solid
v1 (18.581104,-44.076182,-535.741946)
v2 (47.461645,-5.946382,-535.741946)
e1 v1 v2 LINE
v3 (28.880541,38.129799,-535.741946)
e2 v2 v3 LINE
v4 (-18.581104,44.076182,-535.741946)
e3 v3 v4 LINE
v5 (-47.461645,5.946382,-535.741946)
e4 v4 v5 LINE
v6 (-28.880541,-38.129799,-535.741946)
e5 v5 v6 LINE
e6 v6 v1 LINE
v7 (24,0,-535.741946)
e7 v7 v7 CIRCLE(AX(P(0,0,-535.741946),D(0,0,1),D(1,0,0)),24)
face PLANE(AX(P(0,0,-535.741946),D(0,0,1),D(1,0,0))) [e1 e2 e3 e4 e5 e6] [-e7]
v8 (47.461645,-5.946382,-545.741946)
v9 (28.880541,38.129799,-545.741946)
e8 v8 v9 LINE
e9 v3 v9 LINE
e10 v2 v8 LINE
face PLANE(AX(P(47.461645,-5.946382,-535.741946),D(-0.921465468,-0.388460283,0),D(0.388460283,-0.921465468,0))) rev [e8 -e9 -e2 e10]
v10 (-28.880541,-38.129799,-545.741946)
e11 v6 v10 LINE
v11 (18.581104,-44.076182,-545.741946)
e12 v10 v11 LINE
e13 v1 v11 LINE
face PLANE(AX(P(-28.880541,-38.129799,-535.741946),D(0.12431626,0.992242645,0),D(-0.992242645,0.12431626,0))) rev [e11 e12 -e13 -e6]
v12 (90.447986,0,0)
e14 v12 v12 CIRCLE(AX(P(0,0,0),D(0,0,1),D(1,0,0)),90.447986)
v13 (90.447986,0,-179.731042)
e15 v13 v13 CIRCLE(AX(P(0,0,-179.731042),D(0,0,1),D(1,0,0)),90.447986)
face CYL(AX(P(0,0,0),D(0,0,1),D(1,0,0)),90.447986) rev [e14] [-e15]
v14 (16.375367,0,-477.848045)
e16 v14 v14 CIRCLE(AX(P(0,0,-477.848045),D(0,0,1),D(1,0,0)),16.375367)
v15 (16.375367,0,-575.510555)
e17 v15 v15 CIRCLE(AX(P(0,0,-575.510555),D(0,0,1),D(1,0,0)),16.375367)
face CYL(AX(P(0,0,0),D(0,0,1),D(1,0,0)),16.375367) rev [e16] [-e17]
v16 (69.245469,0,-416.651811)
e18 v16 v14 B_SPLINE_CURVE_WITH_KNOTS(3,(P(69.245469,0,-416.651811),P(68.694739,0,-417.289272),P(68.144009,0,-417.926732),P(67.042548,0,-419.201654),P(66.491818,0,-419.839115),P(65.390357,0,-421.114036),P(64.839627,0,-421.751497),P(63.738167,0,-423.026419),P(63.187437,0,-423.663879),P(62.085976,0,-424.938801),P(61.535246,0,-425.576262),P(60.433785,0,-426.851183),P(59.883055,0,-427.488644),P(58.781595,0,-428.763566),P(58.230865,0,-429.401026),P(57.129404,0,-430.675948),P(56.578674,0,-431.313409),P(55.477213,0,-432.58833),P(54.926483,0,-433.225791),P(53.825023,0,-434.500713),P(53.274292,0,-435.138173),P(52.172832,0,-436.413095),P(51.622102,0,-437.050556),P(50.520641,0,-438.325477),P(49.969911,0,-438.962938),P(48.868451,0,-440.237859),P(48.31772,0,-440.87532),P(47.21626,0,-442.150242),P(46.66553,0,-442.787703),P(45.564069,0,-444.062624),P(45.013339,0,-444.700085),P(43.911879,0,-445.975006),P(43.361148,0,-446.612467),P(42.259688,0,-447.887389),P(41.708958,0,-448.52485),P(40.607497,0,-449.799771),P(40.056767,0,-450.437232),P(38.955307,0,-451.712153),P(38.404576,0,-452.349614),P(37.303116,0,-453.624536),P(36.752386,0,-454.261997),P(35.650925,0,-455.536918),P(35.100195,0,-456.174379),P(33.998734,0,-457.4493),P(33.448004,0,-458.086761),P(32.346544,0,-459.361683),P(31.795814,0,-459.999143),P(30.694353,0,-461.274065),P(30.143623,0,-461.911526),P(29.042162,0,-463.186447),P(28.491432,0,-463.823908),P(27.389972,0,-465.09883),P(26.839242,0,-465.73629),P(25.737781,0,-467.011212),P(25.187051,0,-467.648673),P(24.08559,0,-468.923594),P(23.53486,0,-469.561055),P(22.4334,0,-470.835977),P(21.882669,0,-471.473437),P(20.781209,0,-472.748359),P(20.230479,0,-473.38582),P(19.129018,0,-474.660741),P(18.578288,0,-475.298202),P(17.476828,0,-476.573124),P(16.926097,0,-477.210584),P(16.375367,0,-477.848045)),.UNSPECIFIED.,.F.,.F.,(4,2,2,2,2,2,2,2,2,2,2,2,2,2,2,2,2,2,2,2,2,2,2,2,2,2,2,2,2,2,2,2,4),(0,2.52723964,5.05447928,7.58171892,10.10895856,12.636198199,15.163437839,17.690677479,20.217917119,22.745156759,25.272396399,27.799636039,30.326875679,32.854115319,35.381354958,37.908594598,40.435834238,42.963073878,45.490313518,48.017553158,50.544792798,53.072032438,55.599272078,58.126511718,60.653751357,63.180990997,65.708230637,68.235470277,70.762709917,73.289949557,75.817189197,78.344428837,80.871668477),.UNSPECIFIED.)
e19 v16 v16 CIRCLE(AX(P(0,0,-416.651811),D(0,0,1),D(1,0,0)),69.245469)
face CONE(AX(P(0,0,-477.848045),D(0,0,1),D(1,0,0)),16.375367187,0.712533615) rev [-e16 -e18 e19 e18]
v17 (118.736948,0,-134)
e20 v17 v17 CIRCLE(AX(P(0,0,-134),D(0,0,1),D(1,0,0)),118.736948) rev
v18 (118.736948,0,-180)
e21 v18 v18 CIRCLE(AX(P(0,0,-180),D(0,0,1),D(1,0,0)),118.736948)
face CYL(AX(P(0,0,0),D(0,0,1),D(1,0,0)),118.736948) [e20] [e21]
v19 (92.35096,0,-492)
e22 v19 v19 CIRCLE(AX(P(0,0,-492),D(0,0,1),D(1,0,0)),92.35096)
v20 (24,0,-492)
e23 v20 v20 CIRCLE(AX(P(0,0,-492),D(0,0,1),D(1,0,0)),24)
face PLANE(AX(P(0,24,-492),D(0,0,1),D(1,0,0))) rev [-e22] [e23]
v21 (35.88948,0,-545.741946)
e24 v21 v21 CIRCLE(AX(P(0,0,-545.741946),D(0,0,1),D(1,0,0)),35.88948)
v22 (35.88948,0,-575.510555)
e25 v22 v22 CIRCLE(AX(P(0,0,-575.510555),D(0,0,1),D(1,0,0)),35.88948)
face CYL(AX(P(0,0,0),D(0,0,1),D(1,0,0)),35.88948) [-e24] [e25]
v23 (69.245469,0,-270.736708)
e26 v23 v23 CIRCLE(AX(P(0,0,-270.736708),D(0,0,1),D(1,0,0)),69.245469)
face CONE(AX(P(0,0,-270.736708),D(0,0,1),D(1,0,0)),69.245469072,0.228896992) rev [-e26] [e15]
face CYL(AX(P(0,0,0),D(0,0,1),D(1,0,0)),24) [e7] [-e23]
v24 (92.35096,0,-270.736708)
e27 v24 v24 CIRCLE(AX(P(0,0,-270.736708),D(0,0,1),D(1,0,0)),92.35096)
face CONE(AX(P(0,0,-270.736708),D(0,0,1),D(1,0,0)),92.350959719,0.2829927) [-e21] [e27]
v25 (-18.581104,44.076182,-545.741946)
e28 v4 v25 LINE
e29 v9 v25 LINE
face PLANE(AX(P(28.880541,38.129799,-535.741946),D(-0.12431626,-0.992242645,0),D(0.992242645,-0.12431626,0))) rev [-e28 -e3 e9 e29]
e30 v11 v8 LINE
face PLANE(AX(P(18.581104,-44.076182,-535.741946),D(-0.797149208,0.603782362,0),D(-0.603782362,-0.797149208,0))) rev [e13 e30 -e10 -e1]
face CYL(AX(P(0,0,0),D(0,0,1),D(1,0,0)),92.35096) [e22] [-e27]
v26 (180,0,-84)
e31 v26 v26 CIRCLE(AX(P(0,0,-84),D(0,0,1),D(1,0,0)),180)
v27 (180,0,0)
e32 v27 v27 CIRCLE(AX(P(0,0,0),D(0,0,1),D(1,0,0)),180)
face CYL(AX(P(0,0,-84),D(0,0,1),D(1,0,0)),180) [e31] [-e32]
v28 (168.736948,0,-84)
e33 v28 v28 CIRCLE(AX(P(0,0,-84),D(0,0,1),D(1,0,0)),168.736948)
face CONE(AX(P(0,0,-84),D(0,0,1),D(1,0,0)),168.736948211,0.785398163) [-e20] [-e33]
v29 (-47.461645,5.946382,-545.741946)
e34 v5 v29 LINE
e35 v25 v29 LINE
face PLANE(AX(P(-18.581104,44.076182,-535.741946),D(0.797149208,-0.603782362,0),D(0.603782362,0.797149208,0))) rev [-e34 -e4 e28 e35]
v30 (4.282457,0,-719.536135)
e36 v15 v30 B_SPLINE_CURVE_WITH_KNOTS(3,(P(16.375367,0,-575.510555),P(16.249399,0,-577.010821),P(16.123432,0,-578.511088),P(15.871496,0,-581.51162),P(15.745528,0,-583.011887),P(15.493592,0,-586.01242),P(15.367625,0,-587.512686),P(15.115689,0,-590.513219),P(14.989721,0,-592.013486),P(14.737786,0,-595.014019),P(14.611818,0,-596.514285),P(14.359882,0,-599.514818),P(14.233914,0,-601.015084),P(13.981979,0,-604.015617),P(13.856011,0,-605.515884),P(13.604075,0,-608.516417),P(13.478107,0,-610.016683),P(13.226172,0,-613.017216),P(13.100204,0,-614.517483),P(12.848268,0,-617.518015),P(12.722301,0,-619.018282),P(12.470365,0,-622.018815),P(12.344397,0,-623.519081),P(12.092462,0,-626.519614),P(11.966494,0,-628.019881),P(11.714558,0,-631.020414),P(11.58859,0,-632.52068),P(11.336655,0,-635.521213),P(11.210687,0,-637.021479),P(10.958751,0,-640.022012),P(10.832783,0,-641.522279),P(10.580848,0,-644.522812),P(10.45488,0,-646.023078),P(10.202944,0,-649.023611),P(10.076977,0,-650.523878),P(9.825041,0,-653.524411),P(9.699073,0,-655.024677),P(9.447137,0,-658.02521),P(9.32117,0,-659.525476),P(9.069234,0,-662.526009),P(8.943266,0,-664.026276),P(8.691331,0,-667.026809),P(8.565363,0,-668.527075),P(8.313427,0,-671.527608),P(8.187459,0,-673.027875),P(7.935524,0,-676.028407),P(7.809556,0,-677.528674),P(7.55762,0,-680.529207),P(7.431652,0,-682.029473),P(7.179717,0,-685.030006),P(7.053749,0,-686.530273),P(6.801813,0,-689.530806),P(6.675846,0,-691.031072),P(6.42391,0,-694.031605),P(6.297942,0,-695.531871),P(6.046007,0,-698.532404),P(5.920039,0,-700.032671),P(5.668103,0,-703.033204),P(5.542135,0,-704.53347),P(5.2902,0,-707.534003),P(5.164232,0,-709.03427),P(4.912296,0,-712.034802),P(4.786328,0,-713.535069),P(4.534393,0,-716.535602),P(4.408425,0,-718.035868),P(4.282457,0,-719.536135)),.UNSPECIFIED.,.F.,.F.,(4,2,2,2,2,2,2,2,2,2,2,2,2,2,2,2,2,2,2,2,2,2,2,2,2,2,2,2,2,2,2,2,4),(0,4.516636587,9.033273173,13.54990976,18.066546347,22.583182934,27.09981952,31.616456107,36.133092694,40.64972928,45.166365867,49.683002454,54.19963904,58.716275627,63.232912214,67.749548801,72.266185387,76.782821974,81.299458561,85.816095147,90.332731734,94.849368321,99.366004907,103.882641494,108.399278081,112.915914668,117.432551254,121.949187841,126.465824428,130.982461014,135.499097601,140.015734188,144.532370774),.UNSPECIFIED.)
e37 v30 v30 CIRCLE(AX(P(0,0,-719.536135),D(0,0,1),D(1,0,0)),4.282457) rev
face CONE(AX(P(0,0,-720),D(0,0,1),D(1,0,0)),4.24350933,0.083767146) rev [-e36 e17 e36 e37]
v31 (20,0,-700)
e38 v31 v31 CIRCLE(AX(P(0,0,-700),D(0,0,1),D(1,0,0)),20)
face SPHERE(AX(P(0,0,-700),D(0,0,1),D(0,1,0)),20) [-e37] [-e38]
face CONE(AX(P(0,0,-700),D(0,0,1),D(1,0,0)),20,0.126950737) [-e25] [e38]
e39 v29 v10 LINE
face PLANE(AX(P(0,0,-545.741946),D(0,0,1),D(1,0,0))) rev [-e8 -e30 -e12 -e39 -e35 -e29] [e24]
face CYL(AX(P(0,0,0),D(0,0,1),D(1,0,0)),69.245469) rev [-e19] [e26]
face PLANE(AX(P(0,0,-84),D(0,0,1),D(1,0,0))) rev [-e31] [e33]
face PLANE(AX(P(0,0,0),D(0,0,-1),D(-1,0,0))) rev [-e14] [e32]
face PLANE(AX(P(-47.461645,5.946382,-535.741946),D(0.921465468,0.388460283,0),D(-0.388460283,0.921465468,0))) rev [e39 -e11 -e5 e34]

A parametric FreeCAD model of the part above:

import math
import FreeCAD as App
import Part
import Sketcher
from FreeCAD import Vector
Q = App.Units.Quantity


def edges_at(feature, points):
    """Names of the edges that pass closest to the given points."""
    edges = feature.Shape.Edges
    near = lambda p: min(range(len(edges)), key=lambda i: edges[i].distToShape(Part.Vertex(*p))[0])
    return sorted({f"Edge{near(p) + 1}" for p in points})


def add_polygon(sketch, points):
    """Adds a closed chain of lines whose ends are joined by coincident constraints."""
    first, n = sketch.GeometryCount, len(points)
    for a, b in zip(points, points[1:] + points[:1]):
        sketch.addGeometry(Part.LineSegment(App.Vector(*a, 0), App.Vector(*b, 0)), False)
    for i in range(n):
        sketch.addConstraint(Sketcher.Constraint("Coincident", first + i, 2, first + (i + 1) % n, 1))

doc = App.newDocument("Part")
body = doc.addObject("PartDesign::Body", "Body")

# Sketch on YZ plane
sketch1 = body.newObject("Sketcher::SketchObject", "Sketch")
sketch1.AttachmentSupport = (doc.getObject("YZ_Plane"), [""])
sketch1.MapMode = "FlatFace"
sketch1.addGeometry([
    Part.LineSegment(Vector(0, 0, 0), Vector(0, -720, 0)),  # 0
    Part.ArcOfCircle(Part.Circle(Vector(0, -700, 0), Vector(0, 0, 1), 20), math.radians(-90), math.radians(0)),  # 1
    Part.LineSegment(Vector(20, -700, 0), Vector(36, -576, 0)),  # 2
    Part.LineSegment(Vector(36, -576, 0), Vector(36, -546, 0)),  # 3
    Part.LineSegment(Vector(36, -546, 0), Vector(24, -546, 0)),  # 4
    Part.LineSegment(Vector(24, -546, 0), Vector(24, -492, 0)),  # 5
    Part.LineSegment(Vector(24, -492, 0), Vector(92, -492, 0)),  # 6
    Part.LineSegment(Vector(92, -492, 0), Vector(92, -271, 0)),  # 7
    Part.LineSegment(Vector(92, -271, 0), Vector(119, -180, 0)),  # 8
    Part.LineSegment(Vector(119, -180, 0), Vector(119, 0, 0)),  # 9
    Part.LineSegment(Vector(119, 0, 0), Vector(0, 0, 0)),  # 10
], False)
sketch1.addConstraint([
    Sketcher.Constraint("Coincident", 0, 2, 1, 1),
    Sketcher.Constraint("Coincident", 1, 2, 2, 1),
    Sketcher.Constraint("Coincident", 2, 2, 3, 1),
    Sketcher.Constraint("Coincident", 3, 2, 4, 1),
    Sketcher.Constraint("Coincident", 4, 2, 5, 1),
    Sketcher.Constraint("Coincident", 5, 2, 6, 1),
    Sketcher.Constraint("Coincident", 6, 2, 7, 1),
    Sketcher.Constraint("Coincident", 7, 2, 8, 1),
    Sketcher.Constraint("Coincident", 8, 2, 9, 1),
    Sketcher.Constraint("Coincident", 9, 2, 10, 1),
    Sketcher.Constraint("Coincident", 10, 2, 0, 1),
    Sketcher.Constraint("Vertical", 0),
    Sketcher.Constraint("Vertical", 3),
    Sketcher.Constraint("Horizontal", 4),
    Sketcher.Constraint("Vertical", 5),
    Sketcher.Constraint("Horizontal", 6),
    Sketcher.Constraint("Vertical", 7),
    Sketcher.Constraint("Vertical", 9),
    Sketcher.Constraint("Horizontal", 10),
    Sketcher.Constraint("Coincident", 10, 2, -1, 1),
    Sketcher.Constraint("PointOnObject", 1, 3, -2),
    Sketcher.Constraint("Radius", 1, Q("20 mm")),
    Sketcher.Constraint("DistanceY", 0, 2, 0, 1, Q("720 mm")),
    Sketcher.Constraint("DistanceY", 9, 1, 9, 2, Q("180 mm")),
    Sketcher.Constraint("DistanceY", 1, 2, -1, 1, Q("700 mm")),
    Sketcher.Constraint("DistanceX", -1, 1, 4, 2, Q("24 mm")),
    Sketcher.Constraint("DistanceY", 5, 2, -1, 1, Q("492 mm")),
    Sketcher.Constraint("DistanceX", 4, 2, 4, 1, Q("11.88948 mm")),
    Sketcher.Constraint("DistanceX", 6, 1, 6, 2, Q("68.35096 mm")),
    Sketcher.Constraint("DistanceX", 10, 2, 10, 1, Q("118.736948 mm")),
    Sketcher.Constraint("DistanceY", 3, 1, 3, 2, Q("29.768608 mm")),
    Sketcher.Constraint("DistanceY", 7, 1, 7, 2, Q("221.263292 mm")),
    Sketcher.Constraint("DistanceY", 5, 1, 5, 2, Q("53.741946 mm")),
])
revolution = body.newObject("PartDesign::Revolution", "Revolution")
revolution.Profile = sketch1
revolution.ReferenceAxis = (sketch1, ["V_Axis"])
revolution.Angle = 360

# Sketch on XY plane
sketch2 = body.newObject("Sketcher::SketchObject", "Sketch001")
sketch2.AttachmentSupport = (doc.getObject("XY_Plane"), [""])
sketch2.MapMode = "FlatFace"
sketch2.AttachmentOffset = App.Placement(Vector(0, 0, -545.741946), App.Rotation())
add_polygon(sketch2, [(47, -6), (29, 38), (-19, 44), (-47, 6), (-29, -38), (19, -44)])  # lines 0-5
sketch2.addConstraint([
    Sketcher.Constraint("Symmetric", 0, 2, 3, 2, -1, 1),
    Sketcher.Constraint("Symmetric", 1, 2, 4, 2, -1, 1),
    Sketcher.Constraint("Symmetric", 2, 2, 5, 2, -1, 1),
    Sketcher.Constraint("Equal", 0, 1),
    Sketcher.Constraint("Equal", 1, 2),
    Sketcher.Constraint("Distance", 0, Q("47.8327 mm")),
    Sketcher.Constraint("DistanceY", -1, 1, 0, 2, Q("38.129799 mm")),
    Sketcher.Constraint("DistanceY", 2, 2, 1, 2, Q("38.129799 mm")),
    Sketcher.Constraint("DistanceX", -1, 1, 0, 2, Q("28.880541 mm")),
])
pad1 = body.newObject("PartDesign::Pad", "Pad")
pad1.Profile = sketch2
pad1.Length = 10

# Sketch on YZ plane
sketch3 = body.newObject("Sketcher::SketchObject", "Sketch002")
sketch3.AttachmentSupport = (doc.getObject("YZ_Plane"), [""])
sketch3.MapMode = "FlatFace"
add_polygon(sketch3, [(0, 0), (0, -720), (4.2, -720), (16.4, -575.5), (16.4, -477.8), (69.2, -416.7), (69.2, -270.7), (90.4, -179.7), (90.4, 0)])  # lines 0-8
sketch3.addConstraint([
    Sketcher.Constraint("Vertical", 0),
    Sketcher.Constraint("Horizontal", 1),
    Sketcher.Constraint("Vertical", 3),
    Sketcher.Constraint("Vertical", 5),
    Sketcher.Constraint("Vertical", 7),
    Sketcher.Constraint("Horizontal", 8),
    Sketcher.Constraint("Coincident", 8, 2, -1, 1),
    Sketcher.Constraint("DistanceY", 0, 2, 0, 1, Q("720 mm")),
    Sketcher.Constraint("DistanceX", 1, 1, 1, 2, Q("4.243509 mm")),
    Sketcher.Constraint("DistanceY", 3, 1, 3, 2, Q("97.662509 mm")),
    Sketcher.Constraint("DistanceX", 3, 2, 4, 2, Q("52.870102 mm")),
    Sketcher.Constraint("Distance", 2, Q("144.997868 mm")),
    Sketcher.Constraint("Distance", 4, Q("80.871668 mm")),
    Sketcher.Constraint("DistanceX", 8, 2, 8, 1, Q("90.447986 mm")),
    Sketcher.Constraint("DistanceY", 5, 1, 5, 2, Q("145.915102 mm")),
    Sketcher.Constraint("DistanceY", 7, 1, 7, 2, Q("179.731042 mm")),
    Sketcher.Constraint("DistanceX", -1, 1, 4, 2, Q("69.245469 mm")),
])
groove = body.newObject("PartDesign::Groove", "Groove")
groove.Profile = sketch3
groove.ReferenceAxis = (sketch3, ["V_Axis"])
groove.Angle = 360

# Sketch on XY plane
sketch4 = body.newObject("Sketcher::SketchObject", "Sketch003")
sketch4.AttachmentSupport = (doc.getObject("XY_Plane"), [""])
sketch4.MapMode = "FlatFace"
sketch4.addGeometry([
    Part.Circle(Vector(0, 0, 0), Vector(0, 0, 1), 180),
    Part.Circle(Vector(0, 0, 0), Vector(0, 0, 1), 90),
], False)
sketch4.addConstraint([
    Sketcher.Constraint("Coincident", 0, 3, -1, 1),
    Sketcher.Constraint("Coincident", 1, 3, -1, 1),
    Sketcher.Constraint("Diameter", 0, Q("360 mm")),
    Sketcher.Constraint("Diameter", 1, Q("180.895972 mm")),
])
pad2 = body.newObject("PartDesign::Pad", "Pad001")
pad2.Profile = sketch4
pad2.Length = 84
pad2.Reversed = True
doc.recompute()

chamfer = body.newObject("PartDesign::Chamfer", "Chamfer")
chamfer.Base = (pad2, edges_at(pad2, [(-118.737, 0, -84)]))
chamfer.Size = 50

doc.recompute()
